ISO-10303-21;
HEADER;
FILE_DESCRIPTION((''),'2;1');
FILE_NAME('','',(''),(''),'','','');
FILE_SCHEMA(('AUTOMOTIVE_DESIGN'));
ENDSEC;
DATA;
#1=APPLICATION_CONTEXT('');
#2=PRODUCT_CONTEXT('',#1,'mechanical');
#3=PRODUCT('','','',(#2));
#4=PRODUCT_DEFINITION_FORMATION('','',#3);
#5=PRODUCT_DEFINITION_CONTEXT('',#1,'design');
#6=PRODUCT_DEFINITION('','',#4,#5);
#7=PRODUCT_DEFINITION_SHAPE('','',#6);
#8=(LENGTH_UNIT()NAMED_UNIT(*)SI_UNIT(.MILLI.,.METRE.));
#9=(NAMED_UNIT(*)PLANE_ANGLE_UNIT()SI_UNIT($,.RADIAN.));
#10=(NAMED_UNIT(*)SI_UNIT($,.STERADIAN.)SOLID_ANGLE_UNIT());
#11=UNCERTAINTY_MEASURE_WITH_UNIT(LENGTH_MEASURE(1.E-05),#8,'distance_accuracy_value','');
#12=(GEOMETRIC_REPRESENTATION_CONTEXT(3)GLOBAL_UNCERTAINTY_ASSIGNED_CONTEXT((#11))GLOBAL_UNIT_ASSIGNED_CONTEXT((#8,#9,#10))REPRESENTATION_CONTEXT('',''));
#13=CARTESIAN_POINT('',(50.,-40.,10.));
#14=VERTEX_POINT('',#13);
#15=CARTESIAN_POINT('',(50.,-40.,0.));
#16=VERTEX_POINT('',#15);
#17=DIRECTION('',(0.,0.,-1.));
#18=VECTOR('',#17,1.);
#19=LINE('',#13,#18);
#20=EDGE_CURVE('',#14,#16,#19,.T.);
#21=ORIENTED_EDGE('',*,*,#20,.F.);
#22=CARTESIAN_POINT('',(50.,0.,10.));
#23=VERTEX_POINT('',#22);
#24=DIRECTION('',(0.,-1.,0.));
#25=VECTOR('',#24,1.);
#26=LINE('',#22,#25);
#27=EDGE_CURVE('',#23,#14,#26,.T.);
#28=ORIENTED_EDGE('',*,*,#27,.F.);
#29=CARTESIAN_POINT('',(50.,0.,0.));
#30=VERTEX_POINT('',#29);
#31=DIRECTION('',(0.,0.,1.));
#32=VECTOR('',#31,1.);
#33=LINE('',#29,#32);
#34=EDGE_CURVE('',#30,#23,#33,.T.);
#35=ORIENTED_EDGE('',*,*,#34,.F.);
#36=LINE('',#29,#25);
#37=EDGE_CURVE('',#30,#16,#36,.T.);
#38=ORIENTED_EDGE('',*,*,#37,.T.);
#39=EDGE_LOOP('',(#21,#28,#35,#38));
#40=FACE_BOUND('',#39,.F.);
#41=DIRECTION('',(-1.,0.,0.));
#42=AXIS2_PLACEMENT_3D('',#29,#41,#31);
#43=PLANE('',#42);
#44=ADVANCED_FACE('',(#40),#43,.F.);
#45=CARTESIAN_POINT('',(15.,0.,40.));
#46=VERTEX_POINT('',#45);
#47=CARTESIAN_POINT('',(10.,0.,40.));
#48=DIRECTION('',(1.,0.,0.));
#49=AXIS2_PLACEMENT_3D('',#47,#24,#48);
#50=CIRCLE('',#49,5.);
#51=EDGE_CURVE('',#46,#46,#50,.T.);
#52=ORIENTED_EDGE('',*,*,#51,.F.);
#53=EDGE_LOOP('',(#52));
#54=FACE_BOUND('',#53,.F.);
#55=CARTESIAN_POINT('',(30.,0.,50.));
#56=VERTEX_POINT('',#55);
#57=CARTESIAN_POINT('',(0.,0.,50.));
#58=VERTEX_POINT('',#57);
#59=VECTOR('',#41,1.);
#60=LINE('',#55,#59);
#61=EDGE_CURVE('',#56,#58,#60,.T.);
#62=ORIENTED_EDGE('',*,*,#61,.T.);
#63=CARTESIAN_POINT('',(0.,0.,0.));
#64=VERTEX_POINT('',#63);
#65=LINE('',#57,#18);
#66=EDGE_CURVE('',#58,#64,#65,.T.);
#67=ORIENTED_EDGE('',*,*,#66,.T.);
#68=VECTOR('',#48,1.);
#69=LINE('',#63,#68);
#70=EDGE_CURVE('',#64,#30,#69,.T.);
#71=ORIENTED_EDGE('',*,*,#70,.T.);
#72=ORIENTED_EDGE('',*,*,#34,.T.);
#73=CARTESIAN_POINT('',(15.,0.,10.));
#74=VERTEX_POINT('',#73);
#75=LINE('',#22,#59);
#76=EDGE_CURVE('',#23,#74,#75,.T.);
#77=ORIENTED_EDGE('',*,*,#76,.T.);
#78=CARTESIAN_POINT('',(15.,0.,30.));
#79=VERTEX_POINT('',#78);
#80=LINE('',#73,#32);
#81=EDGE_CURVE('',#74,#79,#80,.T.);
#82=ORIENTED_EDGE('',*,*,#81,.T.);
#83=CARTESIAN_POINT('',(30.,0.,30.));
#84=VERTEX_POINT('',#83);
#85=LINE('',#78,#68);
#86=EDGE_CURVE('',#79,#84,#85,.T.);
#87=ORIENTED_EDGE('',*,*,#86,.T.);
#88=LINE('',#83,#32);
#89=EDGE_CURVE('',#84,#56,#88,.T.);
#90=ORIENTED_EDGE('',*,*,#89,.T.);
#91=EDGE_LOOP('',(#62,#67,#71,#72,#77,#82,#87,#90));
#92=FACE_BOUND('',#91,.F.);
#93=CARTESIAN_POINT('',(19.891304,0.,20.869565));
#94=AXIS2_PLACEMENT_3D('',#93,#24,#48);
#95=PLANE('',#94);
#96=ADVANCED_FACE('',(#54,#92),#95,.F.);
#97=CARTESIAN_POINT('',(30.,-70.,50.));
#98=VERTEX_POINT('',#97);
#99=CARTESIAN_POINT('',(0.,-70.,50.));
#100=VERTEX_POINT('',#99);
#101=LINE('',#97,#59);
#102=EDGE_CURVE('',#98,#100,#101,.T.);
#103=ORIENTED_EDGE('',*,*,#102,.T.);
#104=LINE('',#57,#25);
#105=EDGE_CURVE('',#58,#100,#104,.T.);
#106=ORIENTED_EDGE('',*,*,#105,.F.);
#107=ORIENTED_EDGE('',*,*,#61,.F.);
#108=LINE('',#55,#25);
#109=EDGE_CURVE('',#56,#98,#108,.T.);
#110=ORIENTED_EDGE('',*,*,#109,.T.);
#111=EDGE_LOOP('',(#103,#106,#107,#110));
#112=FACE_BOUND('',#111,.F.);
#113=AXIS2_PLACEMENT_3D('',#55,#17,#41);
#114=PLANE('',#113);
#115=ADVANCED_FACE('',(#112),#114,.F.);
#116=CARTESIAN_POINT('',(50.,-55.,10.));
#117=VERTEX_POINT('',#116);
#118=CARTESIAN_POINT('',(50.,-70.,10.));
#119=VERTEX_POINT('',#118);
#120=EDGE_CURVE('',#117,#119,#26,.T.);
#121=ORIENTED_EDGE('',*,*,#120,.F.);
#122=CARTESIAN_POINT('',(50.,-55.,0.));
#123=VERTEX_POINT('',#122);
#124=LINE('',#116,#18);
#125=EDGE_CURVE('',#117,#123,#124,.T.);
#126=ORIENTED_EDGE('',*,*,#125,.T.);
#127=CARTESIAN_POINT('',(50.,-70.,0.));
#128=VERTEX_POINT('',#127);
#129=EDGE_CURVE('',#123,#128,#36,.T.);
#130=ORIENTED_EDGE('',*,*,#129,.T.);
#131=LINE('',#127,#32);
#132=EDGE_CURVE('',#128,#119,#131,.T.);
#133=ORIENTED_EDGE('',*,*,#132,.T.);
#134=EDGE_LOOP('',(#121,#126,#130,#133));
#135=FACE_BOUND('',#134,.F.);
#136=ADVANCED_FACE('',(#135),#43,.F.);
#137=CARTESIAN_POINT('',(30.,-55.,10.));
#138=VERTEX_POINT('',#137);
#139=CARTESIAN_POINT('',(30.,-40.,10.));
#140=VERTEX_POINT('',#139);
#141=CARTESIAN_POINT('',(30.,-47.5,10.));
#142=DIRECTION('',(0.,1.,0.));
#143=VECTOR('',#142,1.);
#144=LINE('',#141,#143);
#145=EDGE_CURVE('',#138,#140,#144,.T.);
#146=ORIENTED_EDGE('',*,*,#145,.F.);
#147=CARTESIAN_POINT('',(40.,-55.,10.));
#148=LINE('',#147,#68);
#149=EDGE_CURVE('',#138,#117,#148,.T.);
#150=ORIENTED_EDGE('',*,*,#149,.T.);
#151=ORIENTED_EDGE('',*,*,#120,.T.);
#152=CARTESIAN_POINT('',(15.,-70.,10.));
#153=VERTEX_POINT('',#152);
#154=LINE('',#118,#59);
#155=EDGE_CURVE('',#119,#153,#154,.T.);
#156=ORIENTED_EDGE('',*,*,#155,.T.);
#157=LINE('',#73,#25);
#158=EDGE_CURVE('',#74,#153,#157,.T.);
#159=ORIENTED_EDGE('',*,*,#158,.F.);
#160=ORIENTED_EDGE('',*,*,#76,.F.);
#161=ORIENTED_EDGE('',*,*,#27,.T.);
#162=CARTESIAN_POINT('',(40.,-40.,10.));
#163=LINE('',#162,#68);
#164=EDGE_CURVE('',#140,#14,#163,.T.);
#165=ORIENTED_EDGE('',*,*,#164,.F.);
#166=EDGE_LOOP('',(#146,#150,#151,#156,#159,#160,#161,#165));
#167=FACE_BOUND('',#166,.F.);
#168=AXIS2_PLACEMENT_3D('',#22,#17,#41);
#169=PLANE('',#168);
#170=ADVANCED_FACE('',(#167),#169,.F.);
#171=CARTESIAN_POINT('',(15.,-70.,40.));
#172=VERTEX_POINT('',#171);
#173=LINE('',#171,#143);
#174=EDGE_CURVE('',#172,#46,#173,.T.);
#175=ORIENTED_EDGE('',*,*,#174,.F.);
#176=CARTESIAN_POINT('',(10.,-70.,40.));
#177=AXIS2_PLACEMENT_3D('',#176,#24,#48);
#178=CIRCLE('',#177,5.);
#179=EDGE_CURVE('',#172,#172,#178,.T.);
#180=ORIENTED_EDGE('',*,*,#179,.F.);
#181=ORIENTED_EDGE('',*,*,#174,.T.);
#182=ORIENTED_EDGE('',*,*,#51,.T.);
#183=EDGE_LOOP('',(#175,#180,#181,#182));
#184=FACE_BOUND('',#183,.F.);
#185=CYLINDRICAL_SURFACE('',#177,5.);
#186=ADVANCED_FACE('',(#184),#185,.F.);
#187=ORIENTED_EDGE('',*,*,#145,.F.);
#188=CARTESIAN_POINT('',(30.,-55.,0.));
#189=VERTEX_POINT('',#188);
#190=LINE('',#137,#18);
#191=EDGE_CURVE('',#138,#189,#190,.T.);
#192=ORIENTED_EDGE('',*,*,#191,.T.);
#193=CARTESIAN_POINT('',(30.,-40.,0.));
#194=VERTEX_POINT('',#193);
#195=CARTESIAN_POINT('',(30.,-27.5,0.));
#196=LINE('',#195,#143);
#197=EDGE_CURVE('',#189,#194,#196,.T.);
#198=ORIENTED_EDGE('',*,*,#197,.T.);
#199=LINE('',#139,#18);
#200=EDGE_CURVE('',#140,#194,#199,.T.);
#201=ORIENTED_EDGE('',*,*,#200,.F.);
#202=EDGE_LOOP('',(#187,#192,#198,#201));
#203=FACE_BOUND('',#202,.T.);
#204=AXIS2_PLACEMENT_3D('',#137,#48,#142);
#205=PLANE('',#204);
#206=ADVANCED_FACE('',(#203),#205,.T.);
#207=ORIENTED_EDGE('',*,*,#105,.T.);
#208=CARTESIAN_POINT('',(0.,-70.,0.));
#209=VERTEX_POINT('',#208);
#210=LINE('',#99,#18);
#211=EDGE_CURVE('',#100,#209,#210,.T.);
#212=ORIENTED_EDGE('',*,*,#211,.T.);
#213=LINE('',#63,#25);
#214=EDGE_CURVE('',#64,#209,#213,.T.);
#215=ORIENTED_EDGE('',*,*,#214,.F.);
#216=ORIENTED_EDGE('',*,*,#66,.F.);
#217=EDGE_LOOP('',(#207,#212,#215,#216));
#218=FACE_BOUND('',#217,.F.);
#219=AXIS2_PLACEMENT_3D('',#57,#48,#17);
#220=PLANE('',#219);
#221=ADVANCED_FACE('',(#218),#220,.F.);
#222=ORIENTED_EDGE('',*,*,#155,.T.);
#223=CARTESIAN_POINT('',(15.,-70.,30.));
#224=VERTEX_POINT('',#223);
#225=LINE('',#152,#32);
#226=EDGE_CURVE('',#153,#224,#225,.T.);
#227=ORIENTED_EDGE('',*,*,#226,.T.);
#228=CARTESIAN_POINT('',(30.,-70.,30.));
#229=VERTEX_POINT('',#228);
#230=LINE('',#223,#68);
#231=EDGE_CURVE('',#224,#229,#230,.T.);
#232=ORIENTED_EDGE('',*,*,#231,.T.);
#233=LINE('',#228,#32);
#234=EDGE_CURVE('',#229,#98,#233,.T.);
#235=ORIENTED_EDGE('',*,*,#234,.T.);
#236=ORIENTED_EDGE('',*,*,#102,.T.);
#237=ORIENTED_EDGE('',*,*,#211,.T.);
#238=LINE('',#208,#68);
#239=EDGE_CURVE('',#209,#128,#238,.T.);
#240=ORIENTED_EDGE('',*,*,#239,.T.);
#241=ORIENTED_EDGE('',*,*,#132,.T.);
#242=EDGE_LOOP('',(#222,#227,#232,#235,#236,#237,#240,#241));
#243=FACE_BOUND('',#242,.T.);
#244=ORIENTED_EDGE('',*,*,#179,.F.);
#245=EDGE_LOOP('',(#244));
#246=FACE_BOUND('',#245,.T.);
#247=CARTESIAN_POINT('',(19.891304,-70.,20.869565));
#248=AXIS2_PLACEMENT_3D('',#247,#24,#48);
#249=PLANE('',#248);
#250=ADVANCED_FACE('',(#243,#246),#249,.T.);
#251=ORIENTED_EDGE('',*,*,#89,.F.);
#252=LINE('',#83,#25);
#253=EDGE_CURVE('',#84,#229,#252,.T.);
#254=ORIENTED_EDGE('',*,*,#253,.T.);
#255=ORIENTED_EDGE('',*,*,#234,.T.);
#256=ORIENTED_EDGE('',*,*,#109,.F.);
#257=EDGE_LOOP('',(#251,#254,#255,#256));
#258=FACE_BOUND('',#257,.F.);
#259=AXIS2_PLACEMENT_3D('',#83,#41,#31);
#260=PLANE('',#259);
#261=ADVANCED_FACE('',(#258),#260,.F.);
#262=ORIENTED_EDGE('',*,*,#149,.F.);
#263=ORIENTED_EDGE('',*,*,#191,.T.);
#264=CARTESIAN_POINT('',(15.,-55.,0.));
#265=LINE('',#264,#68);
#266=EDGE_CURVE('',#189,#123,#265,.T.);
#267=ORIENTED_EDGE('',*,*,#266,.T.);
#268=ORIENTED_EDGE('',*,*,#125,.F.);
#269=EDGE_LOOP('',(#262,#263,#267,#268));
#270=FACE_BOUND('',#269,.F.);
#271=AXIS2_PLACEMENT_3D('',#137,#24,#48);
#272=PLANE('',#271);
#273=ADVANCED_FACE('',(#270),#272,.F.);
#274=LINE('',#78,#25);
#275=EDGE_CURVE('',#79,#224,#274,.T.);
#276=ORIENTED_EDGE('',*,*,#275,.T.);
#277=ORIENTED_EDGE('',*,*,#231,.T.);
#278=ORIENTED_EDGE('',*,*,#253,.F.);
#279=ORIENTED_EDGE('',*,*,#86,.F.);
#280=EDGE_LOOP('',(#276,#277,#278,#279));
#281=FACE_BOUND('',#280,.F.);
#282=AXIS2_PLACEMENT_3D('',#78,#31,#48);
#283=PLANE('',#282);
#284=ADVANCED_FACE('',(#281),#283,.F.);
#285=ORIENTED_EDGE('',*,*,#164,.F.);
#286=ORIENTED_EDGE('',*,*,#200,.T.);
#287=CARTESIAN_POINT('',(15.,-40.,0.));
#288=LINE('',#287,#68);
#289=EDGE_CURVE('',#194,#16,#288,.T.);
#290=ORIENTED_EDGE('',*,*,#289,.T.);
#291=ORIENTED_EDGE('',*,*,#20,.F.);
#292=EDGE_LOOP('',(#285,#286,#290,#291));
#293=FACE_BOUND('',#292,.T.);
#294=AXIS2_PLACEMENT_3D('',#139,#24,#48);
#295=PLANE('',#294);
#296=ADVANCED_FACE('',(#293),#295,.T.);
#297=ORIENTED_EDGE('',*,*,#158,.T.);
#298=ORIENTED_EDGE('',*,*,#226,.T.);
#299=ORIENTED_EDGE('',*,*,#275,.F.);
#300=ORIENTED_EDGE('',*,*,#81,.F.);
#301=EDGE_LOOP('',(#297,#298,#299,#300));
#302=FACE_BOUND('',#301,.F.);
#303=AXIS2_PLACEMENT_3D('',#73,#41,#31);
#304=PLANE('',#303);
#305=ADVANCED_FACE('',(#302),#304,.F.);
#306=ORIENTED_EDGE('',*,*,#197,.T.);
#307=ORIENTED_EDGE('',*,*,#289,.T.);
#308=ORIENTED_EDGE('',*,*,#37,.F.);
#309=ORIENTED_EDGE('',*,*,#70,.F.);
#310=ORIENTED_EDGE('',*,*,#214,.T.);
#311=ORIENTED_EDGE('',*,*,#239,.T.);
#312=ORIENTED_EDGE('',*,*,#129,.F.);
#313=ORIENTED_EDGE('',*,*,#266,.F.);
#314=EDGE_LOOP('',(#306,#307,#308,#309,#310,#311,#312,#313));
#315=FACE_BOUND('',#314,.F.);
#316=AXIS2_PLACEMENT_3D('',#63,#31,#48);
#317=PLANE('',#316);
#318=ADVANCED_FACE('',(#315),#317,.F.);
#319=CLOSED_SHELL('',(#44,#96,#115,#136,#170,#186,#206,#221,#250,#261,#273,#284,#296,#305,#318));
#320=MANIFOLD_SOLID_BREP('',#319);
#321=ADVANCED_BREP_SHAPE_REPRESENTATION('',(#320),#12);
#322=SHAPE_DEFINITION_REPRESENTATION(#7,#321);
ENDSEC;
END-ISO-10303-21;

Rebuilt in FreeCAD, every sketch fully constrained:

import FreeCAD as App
import Part
import Sketcher

V = App.Vector
Q = App.Units.Quantity

doc = App.newDocument("Part")
body = doc.addObject("PartDesign::Body", "Body")

sketch1 = doc.addObject("Sketcher::SketchObject", "Sketch")
body.addObject(sketch1)
sketch1.AttachmentSupport = (doc.XZ_Plane, [""])
sketch1.MapMode = "FlatFace"
sketch1.addGeometry([
    Part.LineSegment(V(0, 50, 0), V(0, 0, 0)),
    Part.LineSegment(V(0, 0, 0), V(50, 0, 0)),
    Part.LineSegment(V(50, 0, 0), V(50, 10, 0)),
    Part.LineSegment(V(50, 10, 0), V(15, 10, 0)),
    Part.LineSegment(V(15, 10, 0), V(15, 30, 0)),
    Part.LineSegment(V(15, 30, 0), V(30, 30, 0)),
    Part.LineSegment(V(30, 30, 0), V(30, 50, 0)),
    Part.LineSegment(V(30, 50, 0), V(0, 50, 0)),
], False)
sketch1.addConstraint([
    Sketcher.Constraint("Coincident", 0, 2, 1, 1),
    Sketcher.Constraint("Coincident", 1, 2, 2, 1),
    Sketcher.Constraint("Coincident", 2, 2, 3, 1),
    Sketcher.Constraint("Coincident", 3, 2, 4, 1),
    Sketcher.Constraint("Coincident", 4, 2, 5, 1),
    Sketcher.Constraint("Coincident", 5, 2, 6, 1),
    Sketcher.Constraint("Coincident", 6, 2, 7, 1),
    Sketcher.Constraint("Coincident", 7, 2, 0, 1),
    Sketcher.Constraint("Vertical", 0),
    Sketcher.Constraint("Horizontal", 1),
    Sketcher.Constraint("Vertical", 2),
    Sketcher.Constraint("Horizontal", 3),
    Sketcher.Constraint("Vertical", 4),
    Sketcher.Constraint("Horizontal", 5),
    Sketcher.Constraint("Vertical", 6),
    Sketcher.Constraint("Horizontal", 7),
    Sketcher.Constraint("Coincident", 0, 2, -1, 1),
    Sketcher.Constraint("Equal", 1, 0),
    Sketcher.Constraint("Equal", 4, 6),
    Sketcher.Constraint("DistanceX", 1, 1, 1, 2, Q("50 mm")),
    Sketcher.Constraint("DistanceX", 3, 2, 3, 1, Q("35 mm")),
    Sketcher.Constraint("DistanceX", 5, 1, 5, 2, Q("15 mm")),
    Sketcher.Constraint("DistanceY", 2, 1, 2, 2, Q("10 mm")),
])
pad1 = doc.addObject("PartDesign::Pad", "Pad")
body.addObject(pad1)
pad1.Profile = sketch1
pad1.Length = 70

sketch2 = doc.addObject("Sketcher::SketchObject", "Sketch001")
body.addObject(sketch2)
sketch2.AttachmentSupport = (doc.XY_Plane, [""])
sketch2.MapMode = "FlatFace"
sketch2.AttachmentOffset = App.Placement(V(0, 0, 10), App.Rotation())
sketch2.addGeometry([
    Part.LineSegment(V(30, -40, 0), V(30, -55, 0)),
    Part.LineSegment(V(30, -55, 0), V(50, -55, 0)),
    Part.LineSegment(V(50, -55, 0), V(50, -40, 0)),
    Part.LineSegment(V(50, -40, 0), V(30, -40, 0)),
], False)
sketch2.addConstraint([
    Sketcher.Constraint("Coincident", 0, 2, 1, 1),
    Sketcher.Constraint("Coincident", 1, 2, 2, 1),
    Sketcher.Constraint("Coincident", 2, 2, 3, 1),
    Sketcher.Constraint("Coincident", 3, 2, 0, 1),
    Sketcher.Constraint("Vertical", 0),
    Sketcher.Constraint("Horizontal", 1),
    Sketcher.Constraint("Vertical", 2),
    Sketcher.Constraint("Horizontal", 3),
    Sketcher.Constraint("DistanceX", 1, 1, 1, 2, Q("20 mm")),
    Sketcher.Constraint("DistanceY", 0, 2, 0, 1, Q("15 mm")),
    Sketcher.Constraint("DistanceX", -1, 1, 0, 2, Q("30 mm")),
    Sketcher.Constraint("DistanceY", 0, 2, -1, 1, Q("55 mm")),
])
pocket1 = doc.addObject("PartDesign::Pocket", "Pocket")
body.addObject(pocket1)
pocket1.Profile = sketch2
pocket1.Length = 25

sketch3 = doc.addObject("Sketcher::SketchObject", "Sketch002")
body.addObject(sketch3)
sketch3.AttachmentSupport = (doc.XZ_Plane, [""])
sketch3.MapMode = "FlatFace"
sketch3.AttachmentOffset = App.Placement(V(0, 0, 70), App.Rotation())
sketch3.addGeometry(Part.Circle(V(10, 40, 0), V(0, 0, 1), 5), False)
sketch3.addConstraint([
    Sketcher.Constraint("Diameter", 0, Q("10 mm")),
    Sketcher.Constraint("DistanceX", -1, 1, 0, 3, Q("10 mm")),
    Sketcher.Constraint("DistanceY", -1, 1, 0, 3, Q("40 mm")),
])
pocket2 = doc.addObject("PartDesign::Pocket", "Pocket001")
body.addObject(pocket2)
pocket2.Profile = sketch3
pocket2.Type = "ThroughAll"

doc.recompute()
